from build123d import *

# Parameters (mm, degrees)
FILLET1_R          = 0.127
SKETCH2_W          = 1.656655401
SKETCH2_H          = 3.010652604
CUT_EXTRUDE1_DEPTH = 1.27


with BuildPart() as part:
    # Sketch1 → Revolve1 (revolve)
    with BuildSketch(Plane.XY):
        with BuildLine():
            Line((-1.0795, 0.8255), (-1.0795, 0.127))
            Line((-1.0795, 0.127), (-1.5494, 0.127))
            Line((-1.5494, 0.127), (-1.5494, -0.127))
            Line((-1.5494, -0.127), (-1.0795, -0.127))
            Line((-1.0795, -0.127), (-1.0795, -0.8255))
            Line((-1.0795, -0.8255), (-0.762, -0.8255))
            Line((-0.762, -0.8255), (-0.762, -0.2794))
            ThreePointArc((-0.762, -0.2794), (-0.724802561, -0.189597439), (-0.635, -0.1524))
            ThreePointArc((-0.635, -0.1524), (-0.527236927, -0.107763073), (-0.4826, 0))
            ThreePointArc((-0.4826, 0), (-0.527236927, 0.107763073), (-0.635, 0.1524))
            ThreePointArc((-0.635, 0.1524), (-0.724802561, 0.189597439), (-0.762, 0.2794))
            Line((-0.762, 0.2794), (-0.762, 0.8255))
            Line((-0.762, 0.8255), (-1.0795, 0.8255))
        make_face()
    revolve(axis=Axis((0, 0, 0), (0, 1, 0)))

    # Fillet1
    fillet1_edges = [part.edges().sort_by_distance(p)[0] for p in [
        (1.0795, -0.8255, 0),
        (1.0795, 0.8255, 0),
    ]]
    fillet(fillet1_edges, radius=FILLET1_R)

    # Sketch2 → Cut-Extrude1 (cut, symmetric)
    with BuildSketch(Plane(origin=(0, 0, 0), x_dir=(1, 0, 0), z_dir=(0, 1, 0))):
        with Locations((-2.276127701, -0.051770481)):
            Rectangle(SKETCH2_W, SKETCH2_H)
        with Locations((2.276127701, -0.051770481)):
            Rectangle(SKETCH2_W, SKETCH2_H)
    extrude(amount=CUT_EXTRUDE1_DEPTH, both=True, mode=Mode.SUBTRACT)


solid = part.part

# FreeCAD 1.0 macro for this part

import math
import FreeCAD as App
import Part
import Sketcher
from FreeCAD import Vector
Q = App.Units.Quantity


def edges_at(feature, points):
    """Names of the edges that pass closest to the given points."""
    edges = feature.Shape.Edges
    near = lambda p: min(range(len(edges)), key=lambda i: edges[i].distToShape(Part.Vertex(*p))[0])
    return sorted({f"Edge{near(p) + 1}" for p in points})

doc = App.newDocument("Part")
params = doc.addObject("Spreadsheet::Sheet", "Params")
for row, (alias, value) in enumerate([
    ("sketch1_radius", "0.005 in"),
    ("sketch1_radius2", "0.006 in"),
    ("sketch1_height", "0.01 in"),
    ("revolution_angle", "360 deg"),
    ("fillet_radius", "0.005 in"),
    ("pocket1_length", "0.1 in"),
], start=1):
    params.set(f"A{row}", alias)
    params.set(f"B{row}", "=" + value)
    params.setAlias(f"B{row}", alias)

body = doc.addObject("PartDesign::Body", "Body")

sketch1 = body.newObject("Sketcher::SketchObject", "Sketch")
sketch1.AttachmentSupport = (doc.getObject("XY_Plane"), [""])
sketch1.MapMode = "FlatFace"
sketch1.addGeometry([
    Part.LineSegment(Vector(-1.08, 0.83, 0), Vector(-1.08, 0.13, 0)),
    Part.LineSegment(Vector(-1.08, 0.13, 0), Vector(-1.55, 0.13, 0)),
    Part.LineSegment(Vector(-1.55, 0.13, 0), Vector(-1.55, -0.13, 0)),
    Part.LineSegment(Vector(-1.55, -0.13, 0), Vector(-1.08, -0.13, 0)),
    Part.LineSegment(Vector(-1.08, -0.13, 0), Vector(-1.08, -0.83, 0)),
    Part.LineSegment(Vector(-1.08, -0.83, 0), Vector(-0.76, -0.83, 0)),
    Part.LineSegment(Vector(-0.76, -0.83, 0), Vector(-0.76, -0.28, 0)),
    Part.ArcOfCircle(Part.Circle(Vector(-0.63, -0.28, 0), Vector(0, 0, 1), 0.13), math.radians(90), math.radians(180)),
    Part.ArcOfCircle(Part.Circle(Vector(-0.64, 0, 0), Vector(0, 0, 1), 0.15), math.radians(-90), math.radians(0)),
    Part.ArcOfCircle(Part.Circle(Vector(-0.64, 0, 0), Vector(0, 0, 1), 0.15), math.radians(0), math.radians(90)),
    Part.ArcOfCircle(Part.Circle(Vector(-0.63, 0.28, 0), Vector(0, 0, 1), 0.13), math.radians(-180), math.radians(-90)),
    Part.LineSegment(Vector(-0.76, 0.28, 0), Vector(-0.76, 0.83, 0)),
    Part.LineSegment(Vector(-0.76, 0.83, 0), Vector(-1.08, 0.83, 0)),
], False)
sketch1.addConstraint([
    Sketcher.Constraint("Coincident", 0, 2, 1, 1),
    Sketcher.Constraint("Coincident", 1, 2, 2, 1),
    Sketcher.Constraint("Coincident", 2, 2, 3, 1),
    Sketcher.Constraint("Coincident", 3, 2, 4, 1),
    Sketcher.Constraint("Coincident", 4, 2, 5, 1),
    Sketcher.Constraint("Coincident", 5, 2, 6, 1),
    Sketcher.Constraint("Tangent", 6, 2, 7, 2),
    Sketcher.Constraint("Tangent", 7, 1, 8, 1),
    Sketcher.Constraint("Tangent", 8, 2, 9, 1),
    Sketcher.Constraint("Tangent", 9, 2, 10, 2),
    Sketcher.Constraint("Tangent", 10, 1, 11, 1),
    Sketcher.Constraint("Coincident", 11, 2, 12, 1),
    Sketcher.Constraint("Coincident", 12, 2, 0, 1),
    Sketcher.Constraint("Vertical", 0),
    Sketcher.Constraint("Horizontal", 1),
    Sketcher.Constraint("Vertical", 2),
    Sketcher.Constraint("Horizontal", 3),
    Sketcher.Constraint("Vertical", 4),
    Sketcher.Constraint("Horizontal", 5),
    Sketcher.Constraint("Vertical", 6),
    Sketcher.Constraint("Vertical", 11),
    Sketcher.Constraint("Horizontal", 12),
    Sketcher.Constraint("Equal", 8, 9),
    Sketcher.Constraint("Equal", 7, 10),
    Sketcher.Constraint("Symmetric", 7, 3, 10, 3, -1),
    Sketcher.Constraint("Symmetric", 0, 2, 3, 2, -1),
    Sketcher.Constraint("PointOnObject", 8, 2, -1),
    Sketcher.Constraint("Vertical", 7, 3, 8, 3),
    Sketcher.Constraint("Equal", 0, 4),
    Sketcher.Constraint("Radius", 7, Q("0.005 in")),
    Sketcher.Constraint("Radius", 8, Q("0.006 in")),
    Sketcher.Constraint("DistanceY", 2, 2, 2, 1, Q("0.01 in")),
    Sketcher.Constraint("DistanceX", 5, 2, -1, 1, Q("0.03 in")),
    Sketcher.Constraint("DistanceX", 1, 2, 1, 1, Q("0.0185 in")),
    Sketcher.Constraint("DistanceX", 5, 1, 5, 2, Q("0.0125 in")),
    Sketcher.Constraint("DistanceY", 0, 2, 0, 1, Q("0.0275 in")),
])
sketch1.setExpression("Constraints[29]", "Params.sketch1_radius")
sketch1.setExpression("Constraints[30]", "Params.sketch1_radius2")
sketch1.setExpression("Constraints[31]", "Params.sketch1_height")
revolution = body.newObject("PartDesign::Revolution", "Revolution")
revolution.Profile = sketch1
revolution.ReferenceAxis = (sketch1, ["V_Axis"])
revolution.setExpression("Angle", "Params.revolution_angle")
doc.recompute()

fillet = body.newObject("PartDesign::Fillet", "Fillet")
fillet.Base = (revolution, edges_at(revolution, [(1.079, -0.826, 0), (1.079, 0.826, 0)]))
fillet.setExpression("Radius", "Params.fillet_radius")

sketch2 = body.newObject("Sketcher::SketchObject", "Sketch001")
sketch2.AttachmentSupport = (doc.getObject("XZ_Plane"), [""])
sketch2.MapMode = "FlatFace"
sketch2.addGeometry([
    Part.LineSegment(Vector(-3.1, -1.5, 0), Vector(-3.1, 1.6, 0)),
    Part.LineSegment(Vector(-3.1, 1.6, 0), Vector(-1.4, 1.6, 0)),
    Part.LineSegment(Vector(-1.4, 1.6, 0), Vector(-1.4, -1.5, 0)),
    Part.LineSegment(Vector(-1.4, -1.5, 0), Vector(-3.1, -1.5, 0)),
    Part.LineSegment(Vector(1.4, -1.5, 0), Vector(1.4, 1.6, 0)),
    Part.LineSegment(Vector(1.4, 1.6, 0), Vector(3.1, 1.6, 0)),
    Part.LineSegment(Vector(3.1, 1.6, 0), Vector(3.1, -1.5, 0)),
    Part.LineSegment(Vector(3.1, -1.5, 0), Vector(1.4, -1.5, 0)),
], False)
sketch2.addConstraint([
    Sketcher.Constraint("Coincident", 0, 2, 1, 1),
    Sketcher.Constraint("Coincident", 1, 2, 2, 1),
    Sketcher.Constraint("Coincident", 2, 2, 3, 1),
    Sketcher.Constraint("Coincident", 3, 2, 0, 1),
    Sketcher.Constraint("Coincident", 4, 2, 5, 1),
    Sketcher.Constraint("Coincident", 5, 2, 6, 1),
    Sketcher.Constraint("Coincident", 6, 2, 7, 1),
    Sketcher.Constraint("Coincident", 7, 2, 4, 1),
    Sketcher.Constraint("Vertical", 0),
    Sketcher.Constraint("Horizontal", 1),
    Sketcher.Constraint("Vertical", 2),
    Sketcher.Constraint("Horizontal", 3),
    Sketcher.Constraint("Vertical", 4),
    Sketcher.Constraint("Horizontal", 5),
    Sketcher.Constraint("Vertical", 6),
    Sketcher.Constraint("Horizontal", 7),
    Sketcher.Constraint("Symmetric", 1, 2, 4, 2, -2),
    Sketcher.Constraint("Symmetric", 3, 2, 6, 2, -2),
    Sketcher.Constraint("DistanceX", 1, 2, -1, 1, Q("0.057 in")),
    Sketcher.Constraint("DistanceX", 1, 1, 1, 2, Q("1.656655 mm")),
    Sketcher.Constraint("DistanceY", 0, 1, 0, 2, Q("3.010653 mm")),
    Sketcher.Constraint("DistanceY", -1, 1, 0, 2, Q("1.557097 mm")),
])
pocket1 = body.newObject("PartDesign::Pocket", "Pocket")
pocket1.Profile = sketch2
pocket1.setExpression("Length", "Params.pocket1_length")
pocket1.Midplane = True

doc.recompute()
